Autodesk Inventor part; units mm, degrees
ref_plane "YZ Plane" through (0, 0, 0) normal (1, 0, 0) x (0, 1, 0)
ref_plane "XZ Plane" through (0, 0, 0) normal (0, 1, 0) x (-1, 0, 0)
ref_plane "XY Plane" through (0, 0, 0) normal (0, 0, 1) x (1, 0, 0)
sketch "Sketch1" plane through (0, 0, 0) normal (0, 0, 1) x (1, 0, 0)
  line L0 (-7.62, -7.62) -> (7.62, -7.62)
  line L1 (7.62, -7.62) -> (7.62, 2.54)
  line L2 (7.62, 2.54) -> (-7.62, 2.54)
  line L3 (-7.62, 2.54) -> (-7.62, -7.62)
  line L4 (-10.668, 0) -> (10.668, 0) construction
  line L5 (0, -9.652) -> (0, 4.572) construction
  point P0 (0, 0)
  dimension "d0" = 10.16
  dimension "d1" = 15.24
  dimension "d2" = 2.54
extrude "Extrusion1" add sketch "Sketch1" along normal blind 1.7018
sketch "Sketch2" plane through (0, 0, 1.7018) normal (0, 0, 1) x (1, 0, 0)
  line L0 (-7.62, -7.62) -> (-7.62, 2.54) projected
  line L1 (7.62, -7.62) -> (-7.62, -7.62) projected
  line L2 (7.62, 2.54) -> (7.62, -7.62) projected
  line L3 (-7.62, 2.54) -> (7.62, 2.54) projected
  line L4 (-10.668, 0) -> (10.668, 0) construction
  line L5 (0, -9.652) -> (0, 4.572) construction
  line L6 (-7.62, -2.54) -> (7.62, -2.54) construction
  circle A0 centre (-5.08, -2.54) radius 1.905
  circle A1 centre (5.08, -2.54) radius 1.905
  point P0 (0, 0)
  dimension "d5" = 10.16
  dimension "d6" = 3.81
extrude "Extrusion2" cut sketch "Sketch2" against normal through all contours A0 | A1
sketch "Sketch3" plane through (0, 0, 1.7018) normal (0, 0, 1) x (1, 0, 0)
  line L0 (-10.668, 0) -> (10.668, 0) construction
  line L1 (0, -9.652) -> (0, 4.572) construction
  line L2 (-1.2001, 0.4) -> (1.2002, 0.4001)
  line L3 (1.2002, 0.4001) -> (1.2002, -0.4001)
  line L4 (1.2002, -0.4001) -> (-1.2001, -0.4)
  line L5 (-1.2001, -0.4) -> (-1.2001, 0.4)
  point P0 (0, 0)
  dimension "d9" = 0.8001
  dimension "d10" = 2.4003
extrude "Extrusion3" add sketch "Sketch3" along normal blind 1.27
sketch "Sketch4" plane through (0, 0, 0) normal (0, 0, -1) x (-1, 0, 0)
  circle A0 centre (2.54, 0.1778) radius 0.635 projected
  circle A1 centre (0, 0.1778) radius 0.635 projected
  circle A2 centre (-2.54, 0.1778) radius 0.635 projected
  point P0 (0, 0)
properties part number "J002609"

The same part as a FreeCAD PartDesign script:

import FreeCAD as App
import Part
import Sketcher
from FreeCAD import Vector
Q = App.Units.Quantity


def add_polygon(sketch, points):
    """Adds a closed chain of lines whose ends are joined by coincident constraints."""
    first, n = sketch.GeometryCount, len(points)
    for a, b in zip(points, points[1:] + points[:1]):
        sketch.addGeometry(Part.LineSegment(App.Vector(*a, 0), App.Vector(*b, 0)), False)
    for i in range(n):
        sketch.addConstraint(Sketcher.Constraint("Coincident", first + i, 2, first + (i + 1) % n, 1))

doc = App.newDocument("Part")
body = doc.addObject("PartDesign::Body", "Body")

# Sketch on XY plane
sketch1 = doc.addObject("Sketcher::SketchObject", "Sketch")
body.addObject(sketch1)
sketch1.AttachmentSupport = (doc.XY_Plane, [""])
sketch1.MapMode = "FlatFace"
add_polygon(sketch1, [(-8, 3), (-8, -8), (8, -8), (8, 3)])  # lines 0-3
sketch1.addConstraint(Sketcher.Constraint("Vertical", 0))
sketch1.addConstraint(Sketcher.Constraint("Horizontal", 1))
sketch1.addConstraint(Sketcher.Constraint("Vertical", 2))
sketch1.addConstraint(Sketcher.Constraint("Horizontal", 3))
sketch1.addConstraint(Sketcher.Constraint("DistanceX", 1, 1, 1, 2, Q("0.6 in")))
sketch1.addConstraint(Sketcher.Constraint("DistanceY", 0, 2, 0, 1, Q("0.4 in")))
sketch1.addConstraint(Sketcher.Constraint("DistanceY", -1, 1, 2, 2, Q("0.1 in")))
sketch1.addConstraint(Sketcher.Constraint("DistanceX", 0, 2, -1, 1, Q("0.3 in")))
pad1 = doc.addObject("PartDesign::Pad", "Pad")
body.addObject(pad1)
pad1.Profile = sketch1
pad1.Length = Q("0.067 in")

# Sketch on XY plane
sketch2 = doc.addObject("Sketcher::SketchObject", "Sketch001")
body.addObject(sketch2)
sketch2.AttachmentSupport = (doc.XY_Plane, [""])
sketch2.MapMode = "FlatFace"
sketch2.AttachmentOffset = App.Placement(Vector(0, 0, 0.067 * 25.4), App.Rotation())
sketch2.addGeometry(Part.Circle(Vector(-5.1, -2.5, 0), Vector(0, 0, 1), 1.9), False)
sketch2.addGeometry(Part.Circle(Vector(5.1, -2.5, 0), Vector(0, 0, 1), 1.9), False)
sketch2.addConstraint(Sketcher.Constraint("Equal", 0, 1))
sketch2.addConstraint(Sketcher.Constraint("Symmetric", 0, 3, 1, 3, -2))
sketch2.addConstraint(Sketcher.Constraint("Diameter", 0, Q("0.15 in")))
sketch2.addConstraint(Sketcher.Constraint("DistanceX", 0, 3, 1, 3, Q("0.4 in")))
sketch2.addConstraint(Sketcher.Constraint("DistanceY", 0, 3, -1, 1, Q("0.1 in")))
pocket1 = doc.addObject("PartDesign::Pocket", "Pocket")
body.addObject(pocket1)
pocket1.Profile = sketch2
pocket1.Type = "ThroughAll"

# Sketch on XY plane
sketch3 = doc.addObject("Sketcher::SketchObject", "Sketch002")
body.addObject(sketch3)
sketch3.AttachmentSupport = (doc.XY_Plane, [""])
sketch3.MapMode = "FlatFace"
sketch3.AttachmentOffset = App.Placement(Vector(0, 0, 0.067 * 25.4), App.Rotation())
add_polygon(sketch3, [(1.2, 0.4), (-1.2, 0.4), (-1.2, -0.4), (1.2, -0.4)])  # lines 0-3
sketch3.addConstraint(Sketcher.Constraint("Horizontal", 0))
sketch3.addConstraint(Sketcher.Constraint("Vertical", 1))
sketch3.addConstraint(Sketcher.Constraint("Horizontal", 2))
sketch3.addConstraint(Sketcher.Constraint("Vertical", 3))
sketch3.addConstraint(Sketcher.Constraint("Symmetric", 0, 2, 2, 2, -1, 1))
sketch3.addConstraint(Sketcher.Constraint("DistanceX", 0, 2, 0, 1, Q("0.0945 in")))
sketch3.addConstraint(Sketcher.Constraint("DistanceY", 1, 2, 1, 1, Q("0.0315 in")))
pad2 = doc.addObject("PartDesign::Pad", "Pad001")
body.addObject(pad2)
pad2.Profile = sketch3
pad2.Length = Q("0.05 in")

doc.recompute()
